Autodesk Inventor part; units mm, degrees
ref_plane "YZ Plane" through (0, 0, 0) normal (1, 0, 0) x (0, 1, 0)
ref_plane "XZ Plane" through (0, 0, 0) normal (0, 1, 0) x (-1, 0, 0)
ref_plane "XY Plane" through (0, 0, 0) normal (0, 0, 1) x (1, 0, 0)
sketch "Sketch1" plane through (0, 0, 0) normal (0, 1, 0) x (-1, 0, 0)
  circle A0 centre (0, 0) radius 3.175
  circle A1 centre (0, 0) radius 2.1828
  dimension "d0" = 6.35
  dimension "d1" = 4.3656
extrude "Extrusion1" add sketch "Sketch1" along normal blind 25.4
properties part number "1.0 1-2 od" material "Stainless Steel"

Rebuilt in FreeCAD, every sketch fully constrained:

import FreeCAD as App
import Part
import Sketcher
from FreeCAD import Vector
Q = App.Units.Quantity

doc = App.newDocument("Part")
body = doc.addObject("PartDesign::Body", "Body")

sketch1 = doc.addObject("Sketcher::SketchObject", "Sketch")
body.addObject(sketch1)
sketch1.AttachmentSupport = (doc.XZ_Plane, [""])
sketch1.MapMode = "FlatFace"
sketch1.addGeometry([
    Part.Circle(Vector(0, 0, 0), Vector(0, 0, 1), 3.2),
    Part.Circle(Vector(0, 0, 0), Vector(0, 0, 1), 2.2),
], False)
sketch1.addConstraint([
    Sketcher.Constraint("Coincident", 0, 3, -1, 1),
    Sketcher.Constraint("Coincident", 1, 3, -1, 1),
    Sketcher.Constraint("Diameter", 0, Q("0.25 in")),
    Sketcher.Constraint("Diameter", 1, Q("0.171874 in")),
])
pad1 = doc.addObject("PartDesign::Pad", "Pad")
body.addObject(pad1)
pad1.Profile = sketch1
pad1.Length = Q("1 in")
pad1.Reversed = True

doc.recompute()
